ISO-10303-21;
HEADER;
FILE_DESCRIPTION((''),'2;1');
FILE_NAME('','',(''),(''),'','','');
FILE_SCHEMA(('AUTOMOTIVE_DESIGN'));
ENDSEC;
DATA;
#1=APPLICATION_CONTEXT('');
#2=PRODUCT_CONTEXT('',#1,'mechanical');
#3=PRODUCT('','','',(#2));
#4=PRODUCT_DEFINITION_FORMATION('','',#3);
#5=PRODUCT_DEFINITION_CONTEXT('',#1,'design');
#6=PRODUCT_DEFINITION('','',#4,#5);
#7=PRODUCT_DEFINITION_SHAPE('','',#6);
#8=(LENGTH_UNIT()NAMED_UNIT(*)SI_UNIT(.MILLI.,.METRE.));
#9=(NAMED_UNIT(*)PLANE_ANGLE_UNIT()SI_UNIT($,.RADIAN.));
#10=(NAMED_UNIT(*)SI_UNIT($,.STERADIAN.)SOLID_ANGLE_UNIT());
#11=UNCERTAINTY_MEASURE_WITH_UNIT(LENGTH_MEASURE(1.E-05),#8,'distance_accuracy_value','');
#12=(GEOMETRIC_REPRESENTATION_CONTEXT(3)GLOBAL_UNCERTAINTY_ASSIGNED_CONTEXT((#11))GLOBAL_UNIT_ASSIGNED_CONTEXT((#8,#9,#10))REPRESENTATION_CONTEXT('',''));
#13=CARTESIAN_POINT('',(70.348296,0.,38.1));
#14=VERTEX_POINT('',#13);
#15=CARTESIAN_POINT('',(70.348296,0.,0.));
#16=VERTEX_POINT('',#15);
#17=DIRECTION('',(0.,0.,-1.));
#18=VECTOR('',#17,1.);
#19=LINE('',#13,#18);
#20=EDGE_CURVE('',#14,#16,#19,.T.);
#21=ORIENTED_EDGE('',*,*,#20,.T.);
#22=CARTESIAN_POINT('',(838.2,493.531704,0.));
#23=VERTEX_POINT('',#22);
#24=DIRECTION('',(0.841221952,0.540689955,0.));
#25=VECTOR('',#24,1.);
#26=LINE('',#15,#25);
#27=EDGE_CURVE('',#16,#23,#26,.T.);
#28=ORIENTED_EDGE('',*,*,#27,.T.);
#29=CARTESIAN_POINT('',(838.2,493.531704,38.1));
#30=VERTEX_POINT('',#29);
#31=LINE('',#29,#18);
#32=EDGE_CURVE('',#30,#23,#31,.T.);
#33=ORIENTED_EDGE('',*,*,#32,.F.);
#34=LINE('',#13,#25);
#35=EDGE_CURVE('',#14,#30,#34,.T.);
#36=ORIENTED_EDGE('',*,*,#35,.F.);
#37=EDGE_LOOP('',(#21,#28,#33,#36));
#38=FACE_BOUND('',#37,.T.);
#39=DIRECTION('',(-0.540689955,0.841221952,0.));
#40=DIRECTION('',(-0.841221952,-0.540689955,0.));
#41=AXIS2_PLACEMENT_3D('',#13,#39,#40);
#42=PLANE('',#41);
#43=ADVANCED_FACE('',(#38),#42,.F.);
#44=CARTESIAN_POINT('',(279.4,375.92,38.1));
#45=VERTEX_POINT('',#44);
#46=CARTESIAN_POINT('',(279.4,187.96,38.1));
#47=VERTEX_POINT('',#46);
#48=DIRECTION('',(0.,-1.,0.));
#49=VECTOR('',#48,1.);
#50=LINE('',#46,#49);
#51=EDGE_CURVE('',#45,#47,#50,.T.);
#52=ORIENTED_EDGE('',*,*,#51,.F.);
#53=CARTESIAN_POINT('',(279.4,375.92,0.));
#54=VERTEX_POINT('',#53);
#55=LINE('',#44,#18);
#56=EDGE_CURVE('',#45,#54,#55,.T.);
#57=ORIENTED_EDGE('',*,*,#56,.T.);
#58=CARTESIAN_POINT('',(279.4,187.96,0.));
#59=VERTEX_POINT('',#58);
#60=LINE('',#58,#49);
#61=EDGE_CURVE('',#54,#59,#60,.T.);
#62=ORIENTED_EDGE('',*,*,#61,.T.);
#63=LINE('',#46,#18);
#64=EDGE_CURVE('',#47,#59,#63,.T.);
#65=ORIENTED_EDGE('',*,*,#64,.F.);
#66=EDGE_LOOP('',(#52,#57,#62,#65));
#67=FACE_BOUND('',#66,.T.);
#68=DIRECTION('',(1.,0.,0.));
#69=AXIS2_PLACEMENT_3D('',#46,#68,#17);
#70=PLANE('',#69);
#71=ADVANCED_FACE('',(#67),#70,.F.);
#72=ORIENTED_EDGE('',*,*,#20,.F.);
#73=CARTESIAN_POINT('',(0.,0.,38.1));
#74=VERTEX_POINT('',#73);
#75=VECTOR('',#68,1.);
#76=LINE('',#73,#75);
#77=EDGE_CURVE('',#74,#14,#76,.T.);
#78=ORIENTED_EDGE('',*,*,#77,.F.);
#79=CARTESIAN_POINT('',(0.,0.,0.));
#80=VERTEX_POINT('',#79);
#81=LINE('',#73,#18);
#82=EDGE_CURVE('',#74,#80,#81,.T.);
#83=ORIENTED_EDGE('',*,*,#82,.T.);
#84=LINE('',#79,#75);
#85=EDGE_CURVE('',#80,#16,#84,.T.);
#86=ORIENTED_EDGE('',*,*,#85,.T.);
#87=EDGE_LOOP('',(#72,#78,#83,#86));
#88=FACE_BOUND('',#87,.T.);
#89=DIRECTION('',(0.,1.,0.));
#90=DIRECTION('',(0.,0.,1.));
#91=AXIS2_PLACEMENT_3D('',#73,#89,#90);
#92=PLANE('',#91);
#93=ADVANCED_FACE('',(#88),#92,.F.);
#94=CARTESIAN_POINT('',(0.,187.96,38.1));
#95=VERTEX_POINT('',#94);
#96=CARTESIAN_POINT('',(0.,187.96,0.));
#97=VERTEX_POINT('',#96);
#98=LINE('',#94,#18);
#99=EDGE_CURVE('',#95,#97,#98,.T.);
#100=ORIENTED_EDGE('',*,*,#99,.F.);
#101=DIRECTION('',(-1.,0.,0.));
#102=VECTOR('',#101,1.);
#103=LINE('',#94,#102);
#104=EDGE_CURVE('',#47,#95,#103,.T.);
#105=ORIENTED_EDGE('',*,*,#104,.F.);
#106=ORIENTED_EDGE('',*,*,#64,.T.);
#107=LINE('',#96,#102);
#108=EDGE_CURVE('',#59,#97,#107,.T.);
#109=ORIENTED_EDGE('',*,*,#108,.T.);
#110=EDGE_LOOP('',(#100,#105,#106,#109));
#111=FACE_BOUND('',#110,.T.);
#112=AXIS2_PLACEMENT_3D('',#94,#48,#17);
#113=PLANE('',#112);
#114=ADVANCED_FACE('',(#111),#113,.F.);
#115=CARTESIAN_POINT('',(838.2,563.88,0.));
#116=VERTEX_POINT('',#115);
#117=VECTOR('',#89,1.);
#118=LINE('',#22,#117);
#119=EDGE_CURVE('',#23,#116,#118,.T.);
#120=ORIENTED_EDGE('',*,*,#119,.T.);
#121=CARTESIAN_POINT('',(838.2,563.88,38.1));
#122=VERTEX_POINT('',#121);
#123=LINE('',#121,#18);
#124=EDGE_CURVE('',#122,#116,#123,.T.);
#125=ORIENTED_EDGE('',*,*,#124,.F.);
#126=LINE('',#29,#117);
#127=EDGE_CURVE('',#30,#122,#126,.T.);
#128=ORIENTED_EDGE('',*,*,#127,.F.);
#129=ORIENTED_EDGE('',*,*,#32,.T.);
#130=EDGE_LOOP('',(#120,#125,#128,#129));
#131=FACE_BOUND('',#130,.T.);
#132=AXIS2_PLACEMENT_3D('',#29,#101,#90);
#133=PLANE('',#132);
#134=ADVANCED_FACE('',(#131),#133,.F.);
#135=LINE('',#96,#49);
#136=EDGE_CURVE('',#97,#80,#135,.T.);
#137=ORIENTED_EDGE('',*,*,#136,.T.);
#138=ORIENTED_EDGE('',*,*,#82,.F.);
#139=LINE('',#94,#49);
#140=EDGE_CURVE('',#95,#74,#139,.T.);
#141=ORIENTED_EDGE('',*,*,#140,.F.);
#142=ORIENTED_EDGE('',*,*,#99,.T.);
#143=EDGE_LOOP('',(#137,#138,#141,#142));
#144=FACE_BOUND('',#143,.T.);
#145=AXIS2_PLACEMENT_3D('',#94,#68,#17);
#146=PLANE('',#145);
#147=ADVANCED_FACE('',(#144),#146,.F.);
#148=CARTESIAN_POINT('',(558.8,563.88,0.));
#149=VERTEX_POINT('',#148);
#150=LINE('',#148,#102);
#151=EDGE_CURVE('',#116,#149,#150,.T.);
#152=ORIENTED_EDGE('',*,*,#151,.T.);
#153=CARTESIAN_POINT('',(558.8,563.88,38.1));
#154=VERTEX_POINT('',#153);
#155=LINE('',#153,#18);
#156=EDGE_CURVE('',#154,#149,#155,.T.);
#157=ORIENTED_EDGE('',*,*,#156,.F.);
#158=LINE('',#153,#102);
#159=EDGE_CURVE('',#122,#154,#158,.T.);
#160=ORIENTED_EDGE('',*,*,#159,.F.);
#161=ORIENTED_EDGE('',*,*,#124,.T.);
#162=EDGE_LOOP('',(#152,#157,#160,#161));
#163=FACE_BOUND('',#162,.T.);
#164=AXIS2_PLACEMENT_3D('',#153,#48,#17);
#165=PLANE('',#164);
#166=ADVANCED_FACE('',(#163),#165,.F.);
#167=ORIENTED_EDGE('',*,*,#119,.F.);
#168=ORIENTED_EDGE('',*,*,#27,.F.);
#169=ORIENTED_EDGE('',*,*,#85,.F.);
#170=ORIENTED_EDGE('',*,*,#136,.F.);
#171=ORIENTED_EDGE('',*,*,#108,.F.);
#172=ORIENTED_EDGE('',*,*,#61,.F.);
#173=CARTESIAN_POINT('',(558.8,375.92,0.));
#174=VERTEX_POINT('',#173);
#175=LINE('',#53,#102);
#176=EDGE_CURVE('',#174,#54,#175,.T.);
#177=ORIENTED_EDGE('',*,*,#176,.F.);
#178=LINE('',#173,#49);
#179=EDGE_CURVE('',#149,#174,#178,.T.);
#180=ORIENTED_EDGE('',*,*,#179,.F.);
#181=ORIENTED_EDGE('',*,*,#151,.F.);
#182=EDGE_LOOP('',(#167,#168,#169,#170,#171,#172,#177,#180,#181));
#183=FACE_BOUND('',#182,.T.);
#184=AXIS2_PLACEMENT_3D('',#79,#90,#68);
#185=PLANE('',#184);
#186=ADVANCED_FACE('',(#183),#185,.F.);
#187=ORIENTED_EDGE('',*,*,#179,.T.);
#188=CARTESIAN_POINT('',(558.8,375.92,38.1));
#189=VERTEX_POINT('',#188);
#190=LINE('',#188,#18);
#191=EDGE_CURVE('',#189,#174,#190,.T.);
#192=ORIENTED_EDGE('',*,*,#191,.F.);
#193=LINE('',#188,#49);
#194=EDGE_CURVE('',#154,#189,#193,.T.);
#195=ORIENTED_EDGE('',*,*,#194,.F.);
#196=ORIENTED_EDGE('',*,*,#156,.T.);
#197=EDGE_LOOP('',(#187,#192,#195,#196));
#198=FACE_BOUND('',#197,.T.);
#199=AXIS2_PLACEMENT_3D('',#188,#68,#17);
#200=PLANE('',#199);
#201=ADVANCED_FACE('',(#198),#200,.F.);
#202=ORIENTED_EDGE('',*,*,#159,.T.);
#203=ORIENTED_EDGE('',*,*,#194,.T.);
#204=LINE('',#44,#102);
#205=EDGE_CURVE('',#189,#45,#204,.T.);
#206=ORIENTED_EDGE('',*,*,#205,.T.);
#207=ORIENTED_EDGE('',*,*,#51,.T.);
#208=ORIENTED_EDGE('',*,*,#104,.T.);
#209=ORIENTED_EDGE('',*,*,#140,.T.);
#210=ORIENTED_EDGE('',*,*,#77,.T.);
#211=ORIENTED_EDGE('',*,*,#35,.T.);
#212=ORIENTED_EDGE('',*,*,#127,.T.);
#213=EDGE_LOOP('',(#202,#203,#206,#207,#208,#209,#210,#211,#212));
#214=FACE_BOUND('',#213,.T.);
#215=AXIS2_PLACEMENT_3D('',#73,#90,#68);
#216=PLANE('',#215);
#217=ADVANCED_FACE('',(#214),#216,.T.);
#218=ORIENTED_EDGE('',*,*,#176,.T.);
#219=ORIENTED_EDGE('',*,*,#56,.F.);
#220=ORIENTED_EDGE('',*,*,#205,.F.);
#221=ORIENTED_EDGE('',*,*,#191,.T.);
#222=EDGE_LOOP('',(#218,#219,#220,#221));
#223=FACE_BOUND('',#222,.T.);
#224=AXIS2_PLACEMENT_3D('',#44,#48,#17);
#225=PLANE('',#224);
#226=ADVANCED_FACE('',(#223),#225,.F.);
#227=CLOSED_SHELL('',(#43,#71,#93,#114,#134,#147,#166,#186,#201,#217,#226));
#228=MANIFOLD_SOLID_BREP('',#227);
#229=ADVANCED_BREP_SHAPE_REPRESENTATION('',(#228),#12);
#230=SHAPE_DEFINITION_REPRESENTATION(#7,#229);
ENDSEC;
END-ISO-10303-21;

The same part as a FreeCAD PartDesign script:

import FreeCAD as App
import Part
import Sketcher

V = App.Vector
Q = App.Units.Quantity

doc = App.newDocument("Part")
body = doc.addObject("PartDesign::Body", "Body")

sketch1 = doc.addObject("Sketcher::SketchObject", "Sketch")
body.addObject(sketch1)
sketch1.AttachmentSupport = (doc.XY_Plane, [""])
sketch1.MapMode = "FlatFace"
sketch1.addGeometry(Part.LineSegment(V(0, 188, 0), V(0, 0, 0)), False)
sketch1.addGeometry(Part.LineSegment(V(0, 0, 0), V(70, 0, 0)), False)
sketch1.addGeometry(Part.LineSegment(V(70, 0, 0), V(838, 494, 0)), False)
sketch1.addGeometry(Part.LineSegment(V(838, 494, 0), V(838, 564, 0)), False)
sketch1.addGeometry(Part.LineSegment(V(838, 564, 0), V(559, 564, 0)), False)
sketch1.addGeometry(Part.LineSegment(V(559, 564, 0), V(559, 376, 0)), False)
sketch1.addGeometry(Part.LineSegment(V(559, 376, 0), V(279, 376, 0)), False)
sketch1.addGeometry(Part.LineSegment(V(279, 376, 0), V(279, 188, 0)), False)
sketch1.addGeometry(Part.LineSegment(V(279, 188, 0), V(0, 188, 0)), False)
sketch1.addConstraint(Sketcher.Constraint("Coincident", 0, 2, 1, 1))
sketch1.addConstraint(Sketcher.Constraint("Coincident", 1, 2, 2, 1))
sketch1.addConstraint(Sketcher.Constraint("Coincident", 2, 2, 3, 1))
sketch1.addConstraint(Sketcher.Constraint("Coincident", 3, 2, 4, 1))
sketch1.addConstraint(Sketcher.Constraint("Coincident", 4, 2, 5, 1))
sketch1.addConstraint(Sketcher.Constraint("Coincident", 5, 2, 6, 1))
sketch1.addConstraint(Sketcher.Constraint("Coincident", 6, 2, 7, 1))
sketch1.addConstraint(Sketcher.Constraint("Coincident", 7, 2, 8, 1))
sketch1.addConstraint(Sketcher.Constraint("Coincident", 8, 2, 0, 1))
sketch1.addConstraint(Sketcher.Constraint("Vertical", 0))
sketch1.addConstraint(Sketcher.Constraint("Horizontal", 1))
sketch1.addConstraint(Sketcher.Constraint("Vertical", 3))
sketch1.addConstraint(Sketcher.Constraint("Horizontal", 4))
sketch1.addConstraint(Sketcher.Constraint("Vertical", 5))
sketch1.addConstraint(Sketcher.Constraint("Horizontal", 6))
sketch1.addConstraint(Sketcher.Constraint("Vertical", 7))
sketch1.addConstraint(Sketcher.Constraint("Horizontal", 8))
sketch1.addConstraint(Sketcher.Constraint("Coincident", 0, 2, -1, 1))
sketch1.addConstraint(Sketcher.Constraint("Equal", 4, 6))
sketch1.addConstraint(Sketcher.Constraint("Equal", 6, 8))
sketch1.addConstraint(Sketcher.Constraint("Equal", 1, 3))
sketch1.addConstraint(Sketcher.Constraint("Equal", 0, 5))
sketch1.addConstraint(Sketcher.Constraint("Equal", 5, 7))
sketch1.addConstraint(Sketcher.Constraint("DistanceX", 4, 2, 4, 1, Q("11 in")))
sketch1.addConstraint(Sketcher.Constraint("DistanceY", 0, 2, 0, 1, Q("7.4 in")))
sketch1.addConstraint(Sketcher.Constraint("DistanceX", 1, 1, 1, 2, 70.348296))
pad1 = doc.addObject("PartDesign::Pad", "Pad")
body.addObject(pad1)
pad1.Profile = sketch1
pad1.Length = Q("1.5 in")

doc.recompute()
